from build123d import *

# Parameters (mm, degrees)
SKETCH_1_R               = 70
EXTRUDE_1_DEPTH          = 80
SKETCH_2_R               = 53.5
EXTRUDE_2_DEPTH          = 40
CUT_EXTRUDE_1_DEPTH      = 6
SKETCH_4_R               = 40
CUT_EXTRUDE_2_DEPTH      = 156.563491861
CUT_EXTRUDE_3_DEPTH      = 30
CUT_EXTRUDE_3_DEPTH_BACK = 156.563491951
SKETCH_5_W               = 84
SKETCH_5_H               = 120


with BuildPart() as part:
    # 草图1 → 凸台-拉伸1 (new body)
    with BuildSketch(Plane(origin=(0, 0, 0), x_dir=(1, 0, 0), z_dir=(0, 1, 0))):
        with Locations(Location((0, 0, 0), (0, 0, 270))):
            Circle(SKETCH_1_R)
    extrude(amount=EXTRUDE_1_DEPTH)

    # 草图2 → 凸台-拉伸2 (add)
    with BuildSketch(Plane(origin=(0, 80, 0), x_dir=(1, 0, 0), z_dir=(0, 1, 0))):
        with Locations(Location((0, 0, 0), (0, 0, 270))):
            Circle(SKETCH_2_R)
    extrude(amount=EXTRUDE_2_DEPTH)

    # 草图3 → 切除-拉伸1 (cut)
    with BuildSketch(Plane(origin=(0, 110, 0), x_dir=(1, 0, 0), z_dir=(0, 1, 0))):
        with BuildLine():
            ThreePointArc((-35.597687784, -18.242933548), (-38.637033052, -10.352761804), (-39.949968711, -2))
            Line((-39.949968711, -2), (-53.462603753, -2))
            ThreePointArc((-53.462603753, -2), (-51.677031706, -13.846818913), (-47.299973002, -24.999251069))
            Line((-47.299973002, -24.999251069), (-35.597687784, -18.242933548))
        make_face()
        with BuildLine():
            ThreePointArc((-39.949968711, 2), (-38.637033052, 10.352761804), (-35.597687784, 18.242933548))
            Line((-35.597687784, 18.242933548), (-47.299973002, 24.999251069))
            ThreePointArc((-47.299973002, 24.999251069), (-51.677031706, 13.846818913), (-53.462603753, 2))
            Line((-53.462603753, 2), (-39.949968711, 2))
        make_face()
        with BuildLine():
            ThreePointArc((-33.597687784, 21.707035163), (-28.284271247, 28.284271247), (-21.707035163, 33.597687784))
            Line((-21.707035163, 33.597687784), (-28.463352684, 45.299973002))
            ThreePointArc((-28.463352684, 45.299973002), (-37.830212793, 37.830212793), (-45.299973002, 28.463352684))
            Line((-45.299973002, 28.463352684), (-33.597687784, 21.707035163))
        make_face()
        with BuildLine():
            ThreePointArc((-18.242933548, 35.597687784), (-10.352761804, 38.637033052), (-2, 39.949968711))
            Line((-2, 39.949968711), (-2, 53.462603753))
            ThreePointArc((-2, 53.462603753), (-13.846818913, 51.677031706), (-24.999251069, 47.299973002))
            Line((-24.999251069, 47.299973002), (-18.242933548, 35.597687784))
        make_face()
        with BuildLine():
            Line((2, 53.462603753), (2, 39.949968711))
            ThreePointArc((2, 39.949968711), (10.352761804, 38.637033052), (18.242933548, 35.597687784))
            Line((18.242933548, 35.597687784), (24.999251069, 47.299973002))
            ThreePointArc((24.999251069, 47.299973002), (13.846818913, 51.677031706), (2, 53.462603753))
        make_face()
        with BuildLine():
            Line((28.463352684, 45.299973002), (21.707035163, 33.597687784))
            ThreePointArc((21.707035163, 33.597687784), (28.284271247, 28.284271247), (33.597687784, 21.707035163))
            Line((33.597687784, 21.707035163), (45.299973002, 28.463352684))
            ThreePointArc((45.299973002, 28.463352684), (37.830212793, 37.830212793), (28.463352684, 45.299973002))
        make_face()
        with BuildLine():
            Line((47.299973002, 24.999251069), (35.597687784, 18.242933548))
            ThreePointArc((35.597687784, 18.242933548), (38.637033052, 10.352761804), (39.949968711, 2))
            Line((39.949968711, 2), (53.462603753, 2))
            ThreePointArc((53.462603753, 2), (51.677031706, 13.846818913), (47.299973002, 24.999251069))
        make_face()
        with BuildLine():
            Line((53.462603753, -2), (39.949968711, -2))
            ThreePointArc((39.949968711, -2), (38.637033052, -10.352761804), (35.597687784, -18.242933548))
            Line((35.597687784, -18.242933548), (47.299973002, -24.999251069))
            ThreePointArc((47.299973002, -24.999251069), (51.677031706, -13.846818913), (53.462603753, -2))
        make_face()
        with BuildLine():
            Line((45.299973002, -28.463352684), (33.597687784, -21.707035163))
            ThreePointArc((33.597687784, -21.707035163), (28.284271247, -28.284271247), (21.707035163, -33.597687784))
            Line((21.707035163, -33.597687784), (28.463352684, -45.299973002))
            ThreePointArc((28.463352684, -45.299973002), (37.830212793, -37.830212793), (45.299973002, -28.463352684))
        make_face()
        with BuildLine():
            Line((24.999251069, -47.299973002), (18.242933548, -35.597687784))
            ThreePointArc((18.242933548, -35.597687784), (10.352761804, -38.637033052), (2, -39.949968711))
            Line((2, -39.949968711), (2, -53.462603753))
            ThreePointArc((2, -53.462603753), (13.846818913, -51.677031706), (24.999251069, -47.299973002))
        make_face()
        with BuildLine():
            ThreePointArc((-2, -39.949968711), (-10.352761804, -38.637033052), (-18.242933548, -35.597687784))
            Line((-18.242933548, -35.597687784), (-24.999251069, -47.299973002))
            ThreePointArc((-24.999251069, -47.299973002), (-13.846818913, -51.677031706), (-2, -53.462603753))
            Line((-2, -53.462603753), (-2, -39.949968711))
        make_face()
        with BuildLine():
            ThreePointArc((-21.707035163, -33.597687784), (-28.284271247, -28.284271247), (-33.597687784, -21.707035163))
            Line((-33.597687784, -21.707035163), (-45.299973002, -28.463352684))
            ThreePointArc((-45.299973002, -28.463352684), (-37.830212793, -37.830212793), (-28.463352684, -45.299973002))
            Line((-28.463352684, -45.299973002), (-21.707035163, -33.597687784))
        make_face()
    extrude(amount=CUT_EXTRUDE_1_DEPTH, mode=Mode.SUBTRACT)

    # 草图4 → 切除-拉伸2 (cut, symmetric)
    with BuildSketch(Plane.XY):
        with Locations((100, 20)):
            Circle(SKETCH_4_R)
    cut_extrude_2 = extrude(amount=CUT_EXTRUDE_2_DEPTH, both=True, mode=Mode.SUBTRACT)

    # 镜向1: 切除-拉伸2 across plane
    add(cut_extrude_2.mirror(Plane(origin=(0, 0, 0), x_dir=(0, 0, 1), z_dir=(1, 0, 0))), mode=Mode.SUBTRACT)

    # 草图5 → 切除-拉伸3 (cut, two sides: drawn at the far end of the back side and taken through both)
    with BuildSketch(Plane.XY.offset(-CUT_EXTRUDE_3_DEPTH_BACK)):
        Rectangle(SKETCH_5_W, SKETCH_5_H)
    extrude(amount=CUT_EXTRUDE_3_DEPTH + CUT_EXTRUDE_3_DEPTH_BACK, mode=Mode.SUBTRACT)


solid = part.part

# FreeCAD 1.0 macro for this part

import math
import FreeCAD as App
import Part
import Sketcher

V = App.Vector
Q = App.Units.Quantity

doc = App.newDocument("Part")
body = doc.addObject("PartDesign::Body", "Body")

sketch1 = body.newObject("Sketcher::SketchObject", "Sketch")
sketch1.AttachmentSupport = (doc.getObject("XZ_Plane"), [""])
sketch1.MapMode = "FlatFace"
sketch1.addGeometry(Part.Circle(V(0, 0, 0), V(0, 0, 1), 70), False)
sketch1.addConstraint(Sketcher.Constraint("Coincident", 0, 3, -1, 1))
sketch1.addConstraint(Sketcher.Constraint("Diameter", 0, 140.0))
pad1 = body.newObject("PartDesign::Pad", "Pad")
pad1.Profile = sketch1
pad1.Length = 80
pad1.Reversed = True

sketch2 = body.newObject("Sketcher::SketchObject", "Sketch001")
sketch2.AttachmentSupport = (doc.getObject("XZ_Plane"), [""])
sketch2.MapMode = "FlatFace"
sketch2.AttachmentOffset = App.Placement(V(0, 0, -80), App.Rotation())
sketch2.addGeometry(Part.Circle(V(0, 0, 0), V(0, 0, 1), 53.5), False)
sketch2.addConstraint(Sketcher.Constraint("Coincident", 0, 3, -1, 1))
sketch2.addConstraint(Sketcher.Constraint("Diameter", 0, 107.0))
pad2 = body.newObject("PartDesign::Pad", "Pad001")
pad2.Profile = sketch2
pad2.Length = 40
pad2.Reversed = True

sketch3 = body.newObject("Sketcher::SketchObject", "Sketch002")
sketch3.AttachmentSupport = (doc.getObject("XZ_Plane"), [""])
sketch3.MapMode = "FlatFace"
sketch3.AttachmentOffset = App.Placement(V(0, 0, -110), App.Rotation())
sketch3.addGeometry(Part.ArcOfCircle(Part.Circle(V(0, 0, 0), V(0, 0, 1), 40), math.radians(152.865984), math.radians(177.134016)), False)
sketch3.addGeometry(Part.LineSegment(V(-39.949969, 2, 0), V(-53.462604, 2, 0)), False)
sketch3.addGeometry(Part.ArcOfCircle(Part.Circle(V(0, 0, 0), V(0, 0, 1), 53.5), math.radians(152.142398), math.radians(177.857602)), False)
sketch3.addGeometry(Part.LineSegment(V(-47.299973, 24.999251, 0), V(-35.597688, 18.242934, 0)), False)
sketch3.addGeometry(Part.ArcOfCircle(Part.Circle(V(0, 0, 0), V(0, 0, 1), 40), math.radians(-177.134016), math.radians(-152.865984)), False)
sketch3.addGeometry(Part.LineSegment(V(-35.597688, -18.242934, 0), V(-47.299973, -24.999251, 0)), False)
sketch3.addGeometry(Part.ArcOfCircle(Part.Circle(V(0, 0, 0), V(0, 0, 1), 53.5), math.radians(-177.857602), math.radians(-152.142398)), False)
sketch3.addGeometry(Part.LineSegment(V(-53.462604, -2, 0), V(-39.949969, -2, 0)), False)
sketch3.addGeometry(Part.ArcOfCircle(Part.Circle(V(0, 0, 0), V(0, 0, 1), 40), math.radians(-147.134016), math.radians(-122.865984)), False)
sketch3.addGeometry(Part.LineSegment(V(-21.707035, -33.597688, 0), V(-28.463353, -45.299973, 0)), False)
sketch3.addGeometry(Part.ArcOfCircle(Part.Circle(V(0, 0, 0), V(0, 0, 1), 53.5), math.radians(-147.857602), math.radians(-122.142398)), False)
sketch3.addGeometry(Part.LineSegment(V(-45.299973, -28.463353, 0), V(-33.597688, -21.707035, 0)), False)
sketch3.addGeometry(Part.ArcOfCircle(Part.Circle(V(0, 0, 0), V(0, 0, 1), 40), math.radians(-117.134016), math.radians(-92.865984)), False)
sketch3.addGeometry(Part.LineSegment(V(-2, -39.949969, 0), V(-2, -53.462604, 0)), False)
sketch3.addGeometry(Part.ArcOfCircle(Part.Circle(V(0, 0, 0), V(0, 0, 1), 53.5), math.radians(-117.857602), math.radians(-92.142398)), False)
sketch3.addGeometry(Part.LineSegment(V(-24.999251, -47.299973, 0), V(-18.242934, -35.597688, 0)), False)
sketch3.addGeometry(Part.LineSegment(V(2, -53.462604, 0), V(2, -39.949969, 0)), False)
sketch3.addGeometry(Part.ArcOfCircle(Part.Circle(V(0, 0, 0), V(0, 0, 1), 40), math.radians(-87.134016), math.radians(-62.865984)), False)
sketch3.addGeometry(Part.LineSegment(V(18.242934, -35.597688, 0), V(24.999251, -47.299973, 0)), False)
sketch3.addGeometry(Part.ArcOfCircle(Part.Circle(V(0, 0, 0), V(0, 0, 1), 53.5), math.radians(-87.857602), math.radians(-62.142398)), False)
sketch3.addGeometry(Part.LineSegment(V(28.463353, -45.299973, 0), V(21.707035, -33.597688, 0)), False)
sketch3.addGeometry(Part.ArcOfCircle(Part.Circle(V(0, 0, 0), V(0, 0, 1), 40), math.radians(-57.134016), math.radians(-32.865984)), False)
sketch3.addGeometry(Part.LineSegment(V(33.597688, -21.707035, 0), V(45.299973, -28.463353, 0)), False)
sketch3.addGeometry(Part.ArcOfCircle(Part.Circle(V(0, 0, 0), V(0, 0, 1), 53.5), math.radians(-57.857602), math.radians(-32.142398)), False)
sketch3.addGeometry(Part.LineSegment(V(47.299973, -24.999251, 0), V(35.597688, -18.242934, 0)), False)
sketch3.addGeometry(Part.ArcOfCircle(Part.Circle(V(0, 0, 0), V(0, 0, 1), 40), math.radians(-27.134016), math.radians(-2.865984)), False)
sketch3.addGeometry(Part.LineSegment(V(39.949969, -2, 0), V(53.462604, -2, 0)), False)
sketch3.addGeometry(Part.ArcOfCircle(Part.Circle(V(0, 0, 0), V(0, 0, 1), 53.5), math.radians(-27.857602), math.radians(-2.142398)), False)
sketch3.addGeometry(Part.LineSegment(V(53.462604, 2, 0), V(39.949969, 2, 0)), False)
sketch3.addGeometry(Part.ArcOfCircle(Part.Circle(V(0, 0, 0), V(0, 0, 1), 40), math.radians(2.865984), math.radians(27.134016)), False)
sketch3.addGeometry(Part.LineSegment(V(35.597688, 18.242934, 0), V(47.299973, 24.999251, 0)), False)
sketch3.addGeometry(Part.ArcOfCircle(Part.Circle(V(0, 0, 0), V(0, 0, 1), 53.5), math.radians(2.142398), math.radians(27.857602)), False)
sketch3.addGeometry(Part.LineSegment(V(45.299973, 28.463353, 0), V(33.597688, 21.707035, 0)), False)
sketch3.addGeometry(Part.ArcOfCircle(Part.Circle(V(0, 0, 0), V(0, 0, 1), 40), math.radians(32.865984), math.radians(57.134016)), False)
sketch3.addGeometry(Part.LineSegment(V(21.707035, 33.597688, 0), V(28.463353, 45.299973, 0)), False)
sketch3.addGeometry(Part.ArcOfCircle(Part.Circle(V(0, 0, 0), V(0, 0, 1), 53.5), math.radians(32.142398), math.radians(57.857602)), False)
sketch3.addGeometry(Part.LineSegment(V(24.999251, 47.299973, 0), V(18.242934, 35.597688, 0)), False)
sketch3.addGeometry(Part.ArcOfCircle(Part.Circle(V(0, 0, 0), V(0, 0, 1), 40), math.radians(62.865984), math.radians(87.134016)), False)
sketch3.addGeometry(Part.LineSegment(V(2, 39.949969, 0), V(2, 53.462604, 0)), False)
sketch3.addGeometry(Part.ArcOfCircle(Part.Circle(V(0, 0, 0), V(0, 0, 1), 53.5), math.radians(62.142398), math.radians(87.857602)), False)
sketch3.addGeometry(Part.ArcOfCircle(Part.Circle(V(0, 0, 0), V(0, 0, 1), 40), math.radians(92.865984), math.radians(117.134016)), False)
sketch3.addGeometry(Part.LineSegment(V(-18.242934, 35.597688, 0), V(-24.999251, 47.299973, 0)), False)
sketch3.addGeometry(Part.ArcOfCircle(Part.Circle(V(0, 0, 0), V(0, 0, 1), 53.5), math.radians(92.142398), math.radians(117.857602)), False)
sketch3.addGeometry(Part.LineSegment(V(-2, 53.462604, 0), V(-2, 39.949969, 0)), False)
sketch3.addGeometry(Part.ArcOfCircle(Part.Circle(V(0, 0, 0), V(0, 0, 1), 40), math.radians(122.865984), math.radians(147.134016)), False)
sketch3.addGeometry(Part.LineSegment(V(-33.597688, 21.707035, 0), V(-45.299973, 28.463353, 0)), False)
sketch3.addGeometry(Part.ArcOfCircle(Part.Circle(V(0, 0, 0), V(0, 0, 1), 53.5), math.radians(122.142398), math.radians(147.857602)), False)
sketch3.addGeometry(Part.LineSegment(V(-28.463353, 45.299973, 0), V(-21.707035, 33.597688, 0)), False)
sketch3.addConstraint(Sketcher.Constraint("Coincident", 0, 2, 1, 1))
sketch3.addConstraint(Sketcher.Constraint("Coincident", 1, 2, 2, 2))
sketch3.addConstraint(Sketcher.Constraint("Coincident", 2, 1, 3, 1))
sketch3.addConstraint(Sketcher.Constraint("Coincident", 3, 2, 0, 1))
sketch3.addConstraint(Sketcher.Constraint("Coincident", 4, 2, 5, 1))
sketch3.addConstraint(Sketcher.Constraint("Coincident", 5, 2, 6, 2))
sketch3.addConstraint(Sketcher.Constraint("Coincident", 6, 1, 7, 1))
sketch3.addConstraint(Sketcher.Constraint("Coincident", 7, 2, 4, 1))
sketch3.addConstraint(Sketcher.Constraint("Coincident", 8, 2, 9, 1))
sketch3.addConstraint(Sketcher.Constraint("Coincident", 9, 2, 10, 2))
sketch3.addConstraint(Sketcher.Constraint("Coincident", 10, 1, 11, 1))
sketch3.addConstraint(Sketcher.Constraint("Coincident", 11, 2, 8, 1))
sketch3.addConstraint(Sketcher.Constraint("Coincident", 12, 2, 13, 1))
sketch3.addConstraint(Sketcher.Constraint("Coincident", 13, 2, 14, 2))
sketch3.addConstraint(Sketcher.Constraint("Coincident", 14, 1, 15, 1))
sketch3.addConstraint(Sketcher.Constraint("Coincident", 15, 2, 12, 1))
sketch3.addConstraint(Sketcher.Constraint("Coincident", 16, 2, 17, 1))
sketch3.addConstraint(Sketcher.Constraint("Coincident", 17, 2, 18, 1))
sketch3.addConstraint(Sketcher.Constraint("Coincident", 18, 2, 19, 2))
sketch3.addConstraint(Sketcher.Constraint("Coincident", 19, 1, 16, 1))
sketch3.addConstraint(Sketcher.Constraint("Coincident", 20, 2, 21, 1))
sketch3.addConstraint(Sketcher.Constraint("Coincident", 21, 2, 22, 1))
sketch3.addConstraint(Sketcher.Constraint("Coincident", 22, 2, 23, 2))
sketch3.addConstraint(Sketcher.Constraint("Coincident", 23, 1, 20, 1))
sketch3.addConstraint(Sketcher.Constraint("Coincident", 24, 2, 25, 1))
sketch3.addConstraint(Sketcher.Constraint("Coincident", 25, 2, 26, 1))
sketch3.addConstraint(Sketcher.Constraint("Coincident", 26, 2, 27, 2))
sketch3.addConstraint(Sketcher.Constraint("Coincident", 27, 1, 24, 1))
sketch3.addConstraint(Sketcher.Constraint("Coincident", 28, 2, 29, 1))
sketch3.addConstraint(Sketcher.Constraint("Coincident", 29, 2, 30, 1))
sketch3.addConstraint(Sketcher.Constraint("Coincident", 30, 2, 31, 2))
sketch3.addConstraint(Sketcher.Constraint("Coincident", 31, 1, 28, 1))
sketch3.addConstraint(Sketcher.Constraint("Coincident", 32, 2, 33, 1))
sketch3.addConstraint(Sketcher.Constraint("Coincident", 33, 2, 34, 1))
sketch3.addConstraint(Sketcher.Constraint("Coincident", 34, 2, 35, 2))
sketch3.addConstraint(Sketcher.Constraint("Coincident", 35, 1, 32, 1))
sketch3.addConstraint(Sketcher.Constraint("Coincident", 36, 2, 37, 1))
sketch3.addConstraint(Sketcher.Constraint("Coincident", 37, 2, 38, 1))
sketch3.addConstraint(Sketcher.Constraint("Coincident", 38, 2, 39, 2))
sketch3.addConstraint(Sketcher.Constraint("Coincident", 39, 1, 36, 1))
sketch3.addConstraint(Sketcher.Constraint("Coincident", 40, 2, 41, 1))
sketch3.addConstraint(Sketcher.Constraint("Coincident", 41, 2, 42, 2))
sketch3.addConstraint(Sketcher.Constraint("Coincident", 42, 1, 43, 1))
sketch3.addConstraint(Sketcher.Constraint("Coincident", 43, 2, 40, 1))
sketch3.addConstraint(Sketcher.Constraint("Coincident", 44, 2, 45, 1))
sketch3.addConstraint(Sketcher.Constraint("Coincident", 45, 2, 46, 2))
sketch3.addConstraint(Sketcher.Constraint("Coincident", 46, 1, 47, 1))
sketch3.addConstraint(Sketcher.Constraint("Coincident", 47, 2, 44, 1))
sketch3.addConstraint(Sketcher.Constraint("Horizontal", 1))
sketch3.addConstraint(Sketcher.Constraint("Horizontal", 7))
sketch3.addConstraint(Sketcher.Constraint("Vertical", 13))
sketch3.addConstraint(Sketcher.Constraint("Vertical", 16))
sketch3.addConstraint(Sketcher.Constraint("Horizontal", 26))
sketch3.addConstraint(Sketcher.Constraint("Horizontal", 28))
sketch3.addConstraint(Sketcher.Constraint("Vertical", 38))
sketch3.addConstraint(Sketcher.Constraint("Vertical", 43))
sketch3.addConstraint(Sketcher.Constraint("Coincident", 0, 3, -1, 1))
sketch3.addConstraint(Sketcher.Constraint("Coincident", 2, 3, -1, 1))
sketch3.addConstraint(Sketcher.Constraint("Coincident", 4, 3, -1, 1))
sketch3.addConstraint(Sketcher.Constraint("Coincident", 6, 3, -1, 1))
sketch3.addConstraint(Sketcher.Constraint("Coincident", 8, 3, -1, 1))
sketch3.addConstraint(Sketcher.Constraint("Coincident", 10, 3, -1, 1))
sketch3.addConstraint(Sketcher.Constraint("Coincident", 12, 3, -1, 1))
sketch3.addConstraint(Sketcher.Constraint("Coincident", 14, 3, -1, 1))
sketch3.addConstraint(Sketcher.Constraint("Coincident", 17, 3, -1, 1))
sketch3.addConstraint(Sketcher.Constraint("Coincident", 19, 3, -1, 1))
sketch3.addConstraint(Sketcher.Constraint("Coincident", 21, 3, -1, 1))
sketch3.addConstraint(Sketcher.Constraint("Coincident", 23, 3, -1, 1))
sketch3.addConstraint(Sketcher.Constraint("Coincident", 25, 3, -1, 1))
sketch3.addConstraint(Sketcher.Constraint("Coincident", 27, 3, -1, 1))
sketch3.addConstraint(Sketcher.Constraint("Coincident", 29, 3, -1, 1))
sketch3.addConstraint(Sketcher.Constraint("Coincident", 31, 3, -1, 1))
sketch3.addConstraint(Sketcher.Constraint("Coincident", 33, 3, -1, 1))
sketch3.addConstraint(Sketcher.Constraint("Coincident", 35, 3, -1, 1))
sketch3.addConstraint(Sketcher.Constraint("Coincident", 37, 3, -1, 1))
sketch3.addConstraint(Sketcher.Constraint("Coincident", 39, 3, -1, 1))
sketch3.addConstraint(Sketcher.Constraint("Coincident", 40, 3, -1, 1))
sketch3.addConstraint(Sketcher.Constraint("Coincident", 42, 3, -1, 1))
sketch3.addConstraint(Sketcher.Constraint("Coincident", 44, 3, -1, 1))
sketch3.addConstraint(Sketcher.Constraint("Coincident", 46, 3, -1, 1))
sketch3.addConstraint(Sketcher.Constraint("Equal", 0, 4))
sketch3.addConstraint(Sketcher.Constraint("Equal", 2, 6))
sketch3.addConstraint(Sketcher.Constraint("Equal", 4, 8))
sketch3.addConstraint(Sketcher.Constraint("Equal", 6, 10))
sketch3.addConstraint(Sketcher.Constraint("Equal", 8, 12))
sketch3.addConstraint(Sketcher.Constraint("Equal", 10, 14))
sketch3.addConstraint(Sketcher.Constraint("Equal", 12, 17))
sketch3.addConstraint(Sketcher.Constraint("Equal", 14, 19))
sketch3.addConstraint(Sketcher.Constraint("Equal", 17, 21))
sketch3.addConstraint(Sketcher.Constraint("Equal", 19, 23))
sketch3.addConstraint(Sketcher.Constraint("Equal", 21, 25))
sketch3.addConstraint(Sketcher.Constraint("Equal", 23, 27))
sketch3.addConstraint(Sketcher.Constraint("Equal", 25, 29))
sketch3.addConstraint(Sketcher.Constraint("Equal", 27, 31))
sketch3.addConstraint(Sketcher.Constraint("Equal", 29, 33))
sketch3.addConstraint(Sketcher.Constraint("Equal", 31, 35))
sketch3.addConstraint(Sketcher.Constraint("Equal", 33, 37))
sketch3.addConstraint(Sketcher.Constraint("Equal", 35, 39))
sketch3.addConstraint(Sketcher.Constraint("Equal", 37, 40))
sketch3.addConstraint(Sketcher.Constraint("Equal", 39, 42))
sketch3.addConstraint(Sketcher.Constraint("Equal", 40, 44))
sketch3.addConstraint(Sketcher.Constraint("Equal", 42, 46))
sketch3.addConstraint(Sketcher.Constraint("Perpendicular", 3, 9))
sketch3.addConstraint(Sketcher.Constraint("Parallel", 5, 11))
sketch3.addConstraint(Sketcher.Constraint("Parallel", 9, 15))
sketch3.addConstraint(Sketcher.Constraint("Perpendicular", 11, 18))
sketch3.addConstraint(Sketcher.Constraint("Parallel", 18, 20))
sketch3.addConstraint(Sketcher.Constraint("Perpendicular", 15, 22))
sketch3.addConstraint(Sketcher.Constraint("Parallel", 22, 24))
sketch3.addConstraint(Sketcher.Constraint("Perpendicular", 20, 30))
sketch3.addConstraint(Sketcher.Constraint("Parallel", 30, 32))
sketch3.addConstraint(Sketcher.Constraint("Perpendicular", 24, 34))
sketch3.addConstraint(Sketcher.Constraint("Parallel", 34, 36))
sketch3.addConstraint(Sketcher.Constraint("Perpendicular", 32, 41))
sketch3.addConstraint(Sketcher.Constraint("Perpendicular", 36, 45))
sketch3.addConstraint(Sketcher.Constraint("Parallel", 41, 47))
sketch3.addConstraint(Sketcher.Constraint("Horizontal", 12, 2, 16, 2))
sketch3.addConstraint(Sketcher.Constraint("Horizontal", 15, 2, 17, 2))
sketch3.addConstraint(Sketcher.Constraint("Horizontal", 14, 1, 18, 2))
sketch3.addConstraint(Sketcher.Constraint("Horizontal", 8, 2, 20, 2))
sketch3.addConstraint(Sketcher.Constraint("Horizontal", 11, 2, 21, 2))
sketch3.addConstraint(Sketcher.Constraint("Horizontal", 4, 2, 24, 2))
sketch3.addConstraint(Sketcher.Constraint("Horizontal", 7, 2, 25, 2))
sketch3.addConstraint(Sketcher.Constraint("Horizontal", 1, 2, 28, 2))
sketch3.addConstraint(Sketcher.Constraint("Horizontal", 3, 2, 29, 2))
sketch3.addConstraint(Sketcher.Constraint("Horizontal", 36, 2, 40, 2))
sketch3.addConstraint(Sketcher.Constraint("Horizontal", 38, 2, 42, 1))
sketch3.addConstraint(Sketcher.Constraint("Horizontal", 32, 2, 44, 2))
sketch3.addConstraint(Sketcher.Constraint("Horizontal", 34, 2, 46, 1))
sketch3.addConstraint(Sketcher.Constraint("Vertical", 3, 2, 4, 2))
sketch3.addConstraint(Sketcher.Constraint("Vertical", 1, 2, 6, 1))
sketch3.addConstraint(Sketcher.Constraint("Vertical", 21, 2, 32, 2))
sketch3.addConstraint(Sketcher.Constraint("Vertical", 20, 2, 33, 2))
sketch3.addConstraint(Sketcher.Constraint("Vertical", 17, 2, 36, 2))
sketch3.addConstraint(Sketcher.Constraint("Vertical", 19, 1, 37, 2))
sketch3.addConstraint(Sketcher.Constraint("Equal", 28, 13))
sketch3.addConstraint(Sketcher.Constraint("Equal", 5, 9))
sketch3.addConstraint(Sketcher.Constraint("Equal", 9, 11))
sketch3.addConstraint(Sketcher.Constraint("Equal", 11, 15))
sketch3.addConstraint(Sketcher.Constraint("Radius", 0, 40.0))
sketch3.addConstraint(Sketcher.Constraint("Radius", 2, 53.5))
sketch3.addConstraint(Sketcher.Constraint("Angle", 3, Q("-30 deg")))
sketch3.addConstraint(Sketcher.Constraint("DistanceY", -1, 1, 0, 2, 2.0))
sketch3.addConstraint(Sketcher.Constraint("DistanceY", -1, 1, 2, 1, 24.999251))
pocket1 = body.newObject("PartDesign::Pocket", "Pocket")
pocket1.Profile = sketch3
pocket1.Length = 6

sketch4 = body.newObject("Sketcher::SketchObject", "Sketch003")
sketch4.AttachmentSupport = (doc.getObject("XY_Plane"), [""])
sketch4.MapMode = "FlatFace"
sketch4.addGeometry(Part.Circle(V(100, 20, 0), V(0, 0, 1), 40), False)
sketch4.addConstraint(Sketcher.Constraint("Diameter", 0, 80.0))
sketch4.addConstraint(Sketcher.Constraint("DistanceX", -1, 1, 0, 3, 100.0))
sketch4.addConstraint(Sketcher.Constraint("DistanceY", -1, 1, 0, 3, 20.0))
pocket2 = body.newObject("PartDesign::Pocket", "Pocket001")
pocket2.Profile = sketch4
pocket2.Length = 313.126984
pocket2.Midplane = True
doc.recompute()

mirrored = body.newObject("PartDesign::Mirrored", "Mirrored")
mirrored.Originals = [pocket2]
mirrored.MirrorPlane = (doc.getObject("YZ_Plane"), [""])
body.Tip = mirrored

sketch5 = body.newObject("Sketcher::SketchObject", "Sketch004")
sketch5.AttachmentSupport = (doc.getObject("XY_Plane"), [""])
sketch5.MapMode = "FlatFace"
sketch5.addGeometry(Part.LineSegment(V(-42, 60, 0), V(-42, -60, 0)), False)
sketch5.addGeometry(Part.LineSegment(V(-42, -60, 0), V(42, -60, 0)), False)
sketch5.addGeometry(Part.LineSegment(V(42, -60, 0), V(42, 60, 0)), False)
sketch5.addGeometry(Part.LineSegment(V(42, 60, 0), V(-42, 60, 0)), False)
sketch5.addConstraint(Sketcher.Constraint("Coincident", 0, 2, 1, 1))
sketch5.addConstraint(Sketcher.Constraint("Coincident", 1, 2, 2, 1))
sketch5.addConstraint(Sketcher.Constraint("Coincident", 2, 2, 3, 1))
sketch5.addConstraint(Sketcher.Constraint("Coincident", 3, 2, 0, 1))
sketch5.addConstraint(Sketcher.Constraint("Vertical", 0))
sketch5.addConstraint(Sketcher.Constraint("Horizontal", 1))
sketch5.addConstraint(Sketcher.Constraint("Vertical", 2))
sketch5.addConstraint(Sketcher.Constraint("Horizontal", 3))
sketch5.addConstraint(Sketcher.Constraint("Symmetric", 0, 2, 2, 2, -1, 1))
sketch5.addConstraint(Sketcher.Constraint("DistanceX", 1, 1, 1, 2, 84.0))
sketch5.addConstraint(Sketcher.Constraint("DistanceY", 0, 2, 0, 1, 120.0))
pocket3 = body.newObject("PartDesign::Pocket", "Pocket002")
pocket3.Profile = sketch5
pocket3.Type = "TwoLengths"
pocket3.Length = 30
pocket3.Length2 = 156.563492
pocket3.Reversed = True

doc.recompute()
